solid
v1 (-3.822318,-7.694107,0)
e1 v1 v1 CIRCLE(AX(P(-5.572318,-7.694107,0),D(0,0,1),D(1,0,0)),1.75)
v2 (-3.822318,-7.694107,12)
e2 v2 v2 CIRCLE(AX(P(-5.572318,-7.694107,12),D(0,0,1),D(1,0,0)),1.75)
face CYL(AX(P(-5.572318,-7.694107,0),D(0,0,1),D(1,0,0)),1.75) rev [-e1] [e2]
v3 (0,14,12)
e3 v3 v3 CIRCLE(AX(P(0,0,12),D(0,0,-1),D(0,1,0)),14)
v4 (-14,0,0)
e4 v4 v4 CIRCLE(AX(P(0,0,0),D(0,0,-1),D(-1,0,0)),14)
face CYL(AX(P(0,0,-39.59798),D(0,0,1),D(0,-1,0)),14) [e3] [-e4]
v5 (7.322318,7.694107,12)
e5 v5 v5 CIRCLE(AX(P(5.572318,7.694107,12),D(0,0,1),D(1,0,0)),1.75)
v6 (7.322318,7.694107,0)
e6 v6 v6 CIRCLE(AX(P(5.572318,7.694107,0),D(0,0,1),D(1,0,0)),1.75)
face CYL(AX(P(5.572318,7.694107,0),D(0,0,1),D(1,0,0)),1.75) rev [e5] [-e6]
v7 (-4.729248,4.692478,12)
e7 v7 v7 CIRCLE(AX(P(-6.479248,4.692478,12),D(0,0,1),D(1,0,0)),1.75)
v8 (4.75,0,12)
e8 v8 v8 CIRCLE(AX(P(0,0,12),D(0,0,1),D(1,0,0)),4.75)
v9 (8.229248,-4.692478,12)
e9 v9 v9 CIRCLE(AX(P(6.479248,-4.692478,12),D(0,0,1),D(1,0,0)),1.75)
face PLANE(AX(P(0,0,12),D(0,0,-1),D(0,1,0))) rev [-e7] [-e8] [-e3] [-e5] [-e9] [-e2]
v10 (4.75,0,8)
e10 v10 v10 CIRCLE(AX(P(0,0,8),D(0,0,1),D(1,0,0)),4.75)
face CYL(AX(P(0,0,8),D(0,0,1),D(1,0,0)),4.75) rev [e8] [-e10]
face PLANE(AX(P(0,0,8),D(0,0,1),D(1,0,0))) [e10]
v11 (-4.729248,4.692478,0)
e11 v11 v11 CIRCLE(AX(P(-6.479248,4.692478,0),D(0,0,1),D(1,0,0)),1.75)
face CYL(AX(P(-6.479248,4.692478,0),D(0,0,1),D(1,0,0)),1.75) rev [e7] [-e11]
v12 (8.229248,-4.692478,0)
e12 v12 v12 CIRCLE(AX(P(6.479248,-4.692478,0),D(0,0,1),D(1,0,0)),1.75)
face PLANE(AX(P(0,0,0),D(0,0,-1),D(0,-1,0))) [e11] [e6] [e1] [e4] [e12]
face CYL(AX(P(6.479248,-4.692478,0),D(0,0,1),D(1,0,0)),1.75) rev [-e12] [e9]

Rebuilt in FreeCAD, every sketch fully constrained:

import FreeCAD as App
import Part
import Sketcher

V = App.Vector
Q = App.Units.Quantity

doc = App.newDocument("Part")
params = doc.addObject("Spreadsheet::Sheet", "Params")
for row, (alias, value) in enumerate([
    ("sketch1_diameter", "28 mm"),
    ("pad1_length", "12 mm"),
    ("sketch2_diameter", "3.5 mm"),
    ("sketch3_diameter", "9.5 mm"),
    ("pocket2_length", "4 mm"),
], start=1):
    params.set(f"A{row}", alias)
    params.set(f"B{row}", "=" + value)
    params.setAlias(f"B{row}", alias)

body = doc.addObject("PartDesign::Body", "Body")

sketch1 = body.newObject("Sketcher::SketchObject", "Sketch")
sketch1.AttachmentSupport = (doc.getObject("XY_Plane"), [""])
sketch1.MapMode = "FlatFace"
sketch1.AttachmentOffset = App.Placement(V(0, 0, 12), App.Rotation())
sketch1.addGeometry(Part.Circle(V(0, 0, 0), V(0, 0, 1), 14), False)
sketch1.addConstraint([
    Sketcher.Constraint("Coincident", 0, 3, -1, 1),
    Sketcher.Constraint("Diameter", 0, Q("28 mm")),
])
sketch1.setExpression("Constraints[1]", "Params.sketch1_diameter")
pad1 = body.newObject("PartDesign::Pad", "Pad")
pad1.Profile = sketch1
pad1.setExpression("Length", "Params.pad1_length")
pad1.Reversed = True

sketch2 = body.newObject("Sketcher::SketchObject", "Sketch001")
sketch2.AttachmentSupport = (doc.getObject("XY_Plane"), [""])
sketch2.MapMode = "FlatFace"
sketch2.AttachmentOffset = App.Placement(V(0, 0, 12), App.Rotation())
sketch2.addGeometry([
    Part.Circle(V(-6.5, 4.7, 0), V(0, 0, 1), 1.8),
    Part.Circle(V(5.6, 7.7, 0), V(0, 0, 1), 1.8),
    Part.Circle(V(6.5, -4.7, 0), V(0, 0, 1), 1.8),
    Part.Circle(V(-5.6, -7.7, 0), V(0, 0, 1), 1.8),
], False)
sketch2.addConstraint([
    Sketcher.Constraint("Equal", 0, 1),
    Sketcher.Constraint("Equal", 1, 2),
    Sketcher.Constraint("Equal", 2, 3),
    Sketcher.Constraint("Symmetric", 0, 3, 2, 3, -1, 1),
    Sketcher.Constraint("Symmetric", 1, 3, 3, 3, -1, 1),
    Sketcher.Constraint("Diameter", 0, Q("3.5 mm")),
    Sketcher.Constraint("DistanceY", 0, 3, 1, 3, Q("3.001629 mm")),
    Sketcher.Constraint("DistanceX", 1, 3, 2, 3, Q("0.90693 mm")),
    Sketcher.Constraint("DistanceX", 0, 3, -1, 1, Q("6.479248 mm")),
    Sketcher.Constraint("DistanceY", -1, 1, 0, 3, Q("4.692478 mm")),
])
sketch2.setExpression("Constraints[5]", "Params.sketch2_diameter")
pocket1 = body.newObject("PartDesign::Pocket", "Pocket")
pocket1.Profile = sketch2
pocket1.Type = "ThroughAll"

sketch3 = body.newObject("Sketcher::SketchObject", "Sketch002")
sketch3.AttachmentSupport = (doc.getObject("XY_Plane"), [""])
sketch3.MapMode = "FlatFace"
sketch3.AttachmentOffset = App.Placement(V(0, 0, 12), App.Rotation())
sketch3.addGeometry(Part.Circle(V(0, 0, 0), V(0, 0, 1), 4.8), False)
sketch3.addConstraint([
    Sketcher.Constraint("Coincident", 0, 3, -1, 1),
    Sketcher.Constraint("Diameter", 0, Q("9.5 mm")),
])
sketch3.setExpression("Constraints[1]", "Params.sketch3_diameter")
pocket2 = body.newObject("PartDesign::Pocket", "Pocket001")
pocket2.Profile = sketch3
pocket2.setExpression("Length", "Params.pocket2_length")

doc.recompute()
